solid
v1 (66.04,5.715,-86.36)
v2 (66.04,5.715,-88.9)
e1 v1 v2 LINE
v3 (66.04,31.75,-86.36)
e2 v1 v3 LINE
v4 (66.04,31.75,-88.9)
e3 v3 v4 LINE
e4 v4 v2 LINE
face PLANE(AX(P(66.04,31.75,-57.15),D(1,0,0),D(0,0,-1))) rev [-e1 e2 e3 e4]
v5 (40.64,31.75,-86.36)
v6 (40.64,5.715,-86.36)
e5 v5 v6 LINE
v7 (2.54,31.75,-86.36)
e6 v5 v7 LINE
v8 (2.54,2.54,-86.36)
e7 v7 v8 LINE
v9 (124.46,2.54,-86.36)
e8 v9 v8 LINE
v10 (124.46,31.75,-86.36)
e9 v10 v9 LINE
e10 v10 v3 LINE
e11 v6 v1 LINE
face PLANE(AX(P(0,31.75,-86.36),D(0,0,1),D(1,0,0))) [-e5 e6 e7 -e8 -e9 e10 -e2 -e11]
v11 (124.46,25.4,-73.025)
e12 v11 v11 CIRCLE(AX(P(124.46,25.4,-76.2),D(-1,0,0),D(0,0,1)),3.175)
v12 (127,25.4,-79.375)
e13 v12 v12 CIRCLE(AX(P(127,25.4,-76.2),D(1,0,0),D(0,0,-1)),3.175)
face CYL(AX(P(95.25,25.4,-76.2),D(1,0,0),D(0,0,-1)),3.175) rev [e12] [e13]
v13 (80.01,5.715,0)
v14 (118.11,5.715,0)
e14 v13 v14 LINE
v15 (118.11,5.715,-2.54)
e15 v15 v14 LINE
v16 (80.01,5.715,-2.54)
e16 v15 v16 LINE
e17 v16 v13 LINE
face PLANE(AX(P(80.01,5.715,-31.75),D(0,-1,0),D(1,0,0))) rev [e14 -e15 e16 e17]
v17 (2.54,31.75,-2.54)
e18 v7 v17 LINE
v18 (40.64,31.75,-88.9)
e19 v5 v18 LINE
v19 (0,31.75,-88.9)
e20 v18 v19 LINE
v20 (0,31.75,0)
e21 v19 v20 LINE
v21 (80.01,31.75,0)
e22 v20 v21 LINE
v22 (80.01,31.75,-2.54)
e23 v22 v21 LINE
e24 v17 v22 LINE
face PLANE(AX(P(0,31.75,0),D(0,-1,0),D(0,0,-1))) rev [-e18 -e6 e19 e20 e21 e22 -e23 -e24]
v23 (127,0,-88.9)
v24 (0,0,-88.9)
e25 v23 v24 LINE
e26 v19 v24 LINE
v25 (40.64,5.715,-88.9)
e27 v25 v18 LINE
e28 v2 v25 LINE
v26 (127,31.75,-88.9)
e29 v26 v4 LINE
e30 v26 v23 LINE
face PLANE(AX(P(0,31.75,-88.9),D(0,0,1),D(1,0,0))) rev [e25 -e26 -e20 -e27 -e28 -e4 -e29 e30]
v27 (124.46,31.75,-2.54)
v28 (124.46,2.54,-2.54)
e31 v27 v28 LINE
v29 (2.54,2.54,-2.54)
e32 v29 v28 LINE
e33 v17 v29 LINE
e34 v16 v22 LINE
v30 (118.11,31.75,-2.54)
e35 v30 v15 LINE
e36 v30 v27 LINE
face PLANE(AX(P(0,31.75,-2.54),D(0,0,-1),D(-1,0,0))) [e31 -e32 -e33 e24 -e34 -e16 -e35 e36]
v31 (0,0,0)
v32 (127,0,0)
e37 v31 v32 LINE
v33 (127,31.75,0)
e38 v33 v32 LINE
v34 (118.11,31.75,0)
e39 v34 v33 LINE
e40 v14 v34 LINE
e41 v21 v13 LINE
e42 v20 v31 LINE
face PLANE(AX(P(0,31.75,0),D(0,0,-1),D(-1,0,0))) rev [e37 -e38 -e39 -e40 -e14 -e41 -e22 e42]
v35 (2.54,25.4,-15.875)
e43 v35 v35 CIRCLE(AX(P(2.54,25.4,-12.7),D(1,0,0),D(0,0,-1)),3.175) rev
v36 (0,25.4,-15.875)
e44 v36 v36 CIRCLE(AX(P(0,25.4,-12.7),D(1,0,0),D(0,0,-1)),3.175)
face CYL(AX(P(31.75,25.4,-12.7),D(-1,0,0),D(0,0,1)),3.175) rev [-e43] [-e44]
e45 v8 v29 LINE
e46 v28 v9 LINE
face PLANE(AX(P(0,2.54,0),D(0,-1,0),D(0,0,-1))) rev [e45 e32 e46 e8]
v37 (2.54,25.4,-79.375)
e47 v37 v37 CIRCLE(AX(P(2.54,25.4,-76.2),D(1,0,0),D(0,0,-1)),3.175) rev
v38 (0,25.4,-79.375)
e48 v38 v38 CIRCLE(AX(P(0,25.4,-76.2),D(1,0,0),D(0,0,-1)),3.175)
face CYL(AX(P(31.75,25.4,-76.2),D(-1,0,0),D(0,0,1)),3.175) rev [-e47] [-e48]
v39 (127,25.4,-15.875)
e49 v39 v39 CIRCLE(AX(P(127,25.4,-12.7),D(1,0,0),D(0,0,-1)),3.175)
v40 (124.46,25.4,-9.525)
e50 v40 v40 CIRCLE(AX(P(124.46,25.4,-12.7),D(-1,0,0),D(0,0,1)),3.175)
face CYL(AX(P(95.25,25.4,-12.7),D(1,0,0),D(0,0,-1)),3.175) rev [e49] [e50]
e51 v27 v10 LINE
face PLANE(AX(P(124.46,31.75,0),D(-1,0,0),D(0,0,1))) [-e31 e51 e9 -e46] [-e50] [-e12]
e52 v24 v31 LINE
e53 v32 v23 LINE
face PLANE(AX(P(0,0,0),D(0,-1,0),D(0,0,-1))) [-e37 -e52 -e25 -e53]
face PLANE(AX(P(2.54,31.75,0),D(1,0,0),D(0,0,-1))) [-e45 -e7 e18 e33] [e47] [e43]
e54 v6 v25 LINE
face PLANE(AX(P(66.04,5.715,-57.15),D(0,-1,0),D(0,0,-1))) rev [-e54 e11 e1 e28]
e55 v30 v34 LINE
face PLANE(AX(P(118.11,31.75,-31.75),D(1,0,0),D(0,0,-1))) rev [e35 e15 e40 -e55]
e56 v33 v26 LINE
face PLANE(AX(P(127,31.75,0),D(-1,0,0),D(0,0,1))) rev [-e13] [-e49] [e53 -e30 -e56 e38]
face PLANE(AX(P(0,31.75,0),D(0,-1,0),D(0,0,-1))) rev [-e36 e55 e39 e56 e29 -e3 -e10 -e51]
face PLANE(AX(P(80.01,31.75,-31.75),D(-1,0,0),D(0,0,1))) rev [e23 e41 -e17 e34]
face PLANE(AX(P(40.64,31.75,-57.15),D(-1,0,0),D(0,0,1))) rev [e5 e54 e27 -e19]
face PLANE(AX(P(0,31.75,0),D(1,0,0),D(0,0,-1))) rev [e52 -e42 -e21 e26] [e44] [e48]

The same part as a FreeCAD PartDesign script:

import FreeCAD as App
import Part
import Sketcher
from FreeCAD import Vector
Q = App.Units.Quantity


def faces_at(feature, points):
    """Names of the faces that lie closest to the given points."""
    faces = feature.Shape.Faces
    near = lambda p: min(range(len(faces)), key=lambda i: faces[i].distToShape(Part.Vertex(*p))[0])
    return sorted({f"Face{near(p) + 1}" for p in points})

doc = App.newDocument("Part")
params = doc.addObject("Spreadsheet::Sheet", "Params")
for row, (alias, value) in enumerate([
    ("sketch1_width", "5 in"),
    ("sketch1_height", "3.5 in"),
    ("pad1_length", "1.25 in"),
    ("thickness_wall", "0.1 in"),
    ("sketch2_diameter", "0.25 in"),
    ("pocket1_length", "1.25 in"),
    ("sketch3_width", "1.5 in"),
    ("sketch3_height", "1.025 in"),
    ("pocket2_length", "1.25 in"),
    ("sketch4_width", "1 in"),
    ("sketch4_height", "1.025 in"),
    ("pocket3_length", "1.25 in"),
], start=1):
    params.set(f"A{row}", alias)
    params.set(f"B{row}", "=" + value)
    params.setAlias(f"B{row}", alias)

body = doc.addObject("PartDesign::Body", "Body")

sketch1 = body.newObject("Sketcher::SketchObject", "Sketch")
sketch1.AttachmentSupport = (doc.getObject("XZ_Plane"), [""])
sketch1.MapMode = "FlatFace"
sketch1.addGeometry([
    Part.LineSegment(Vector(0, -88.9, 0), Vector(0, 0, 0)),
    Part.LineSegment(Vector(0, 0, 0), Vector(127, 0, 0)),
    Part.LineSegment(Vector(127, 0, 0), Vector(127, -88.9, 0)),
    Part.LineSegment(Vector(127, -88.9, 0), Vector(0, -88.9, 0)),
], False)
sketch1.addConstraint([
    Sketcher.Constraint("Coincident", 0, 2, 1, 1),
    Sketcher.Constraint("Coincident", 1, 2, 2, 1),
    Sketcher.Constraint("Coincident", 2, 2, 3, 1),
    Sketcher.Constraint("Coincident", 3, 2, 0, 1),
    Sketcher.Constraint("Vertical", 0),
    Sketcher.Constraint("Horizontal", 1),
    Sketcher.Constraint("Vertical", 2),
    Sketcher.Constraint("Horizontal", 3),
    Sketcher.Constraint("Coincident", 0, 2, -1, 1),
    Sketcher.Constraint("DistanceX", 1, 1, 1, 2, Q("5 in")),
    Sketcher.Constraint("DistanceY", 0, 1, 0, 2, Q("3.5 in")),
])
sketch1.setExpression("Constraints[9]", "Params.sketch1_width")
sketch1.setExpression("Constraints[10]", "Params.sketch1_height")
pad1 = body.newObject("PartDesign::Pad", "Pad")
pad1.Profile = sketch1
pad1.setExpression("Length", "Params.pad1_length")
pad1.Reversed = True
doc.recompute()

thickness = body.newObject("PartDesign::Thickness", "Thickness")
thickness.Base = (pad1, faces_at(pad1, [(63.5, 31.75, -44.45)]))
thickness.setExpression("Value", "Params.thickness_wall")
thickness.Reversed = True
thickness.Join = "Intersection"

sketch2 = body.newObject("Sketcher::SketchObject", "Sketch001")
sketch2.AttachmentSupport = (doc.getObject("YZ_Plane"), [""])
sketch2.MapMode = "FlatFace"
sketch2.AttachmentOffset = App.Placement(Vector(0, 0, 5 * 25.4), App.Rotation())
sketch2.addGeometry([
    Part.Circle(Vector(25.4, -12.7, 0), Vector(0, 0, 1), 3.175),
    Part.Circle(Vector(25.4, -76.2, 0), Vector(0, 0, 1), 3.175),
], False)
sketch2.addConstraint([
    Sketcher.Constraint("Equal", 0, 1),
    Sketcher.Constraint("Vertical", 0, 3, 1, 3),
    Sketcher.Constraint("Diameter", 0, Q("0.25 in")),
    Sketcher.Constraint("DistanceX", -1, 1, 0, 3, Q("1 in")),
    Sketcher.Constraint("DistanceY", 1, 3, -1, 1, Q("3 in")),
    Sketcher.Constraint("DistanceY", 0, 3, -1, 1, Q("0.5 in")),
])
sketch2.setExpression("Constraints[2]", "Params.sketch2_diameter")
pocket1 = body.newObject("PartDesign::Pocket", "Pocket")
pocket1.Profile = sketch2
pocket1.setExpression("Length", "Params.pocket1_length")
doc.recompute()

datumplane = body.newObject("PartDesign::Plane", "DatumPlane")
datumplane.AttachmentSupport = (doc.getObject("YZ_Plane"), [""])
datumplane.MapMode = "FlatFace"
datumplane.AttachmentOffset = App.Placement(Vector(0, 0, 2.5 * 25.4), App.Rotation())
mirrored = body.newObject("PartDesign::Mirrored", "Mirrored")
mirrored.Originals = [pocket1]
mirrored.MirrorPlane = (datumplane, [""])
body.Tip = mirrored

sketch3 = body.newObject("Sketcher::SketchObject", "Sketch002")
sketch3.AttachmentSupport = (doc.getObject("XY_Plane"), [""])
sketch3.MapMode = "FlatFace"
sketch3.addGeometry([
    Part.LineSegment(Vector(80.01, 31.75, 0), Vector(80.01, 5.715, 0)),
    Part.LineSegment(Vector(80.01, 5.715, 0), Vector(118.11, 5.715, 0)),
    Part.LineSegment(Vector(118.11, 5.715, 0), Vector(118.11, 31.75, 0)),
    Part.LineSegment(Vector(118.11, 31.75, 0), Vector(80.01, 31.75, 0)),
], False)
sketch3.addConstraint([
    Sketcher.Constraint("Coincident", 0, 2, 1, 1),
    Sketcher.Constraint("Coincident", 1, 2, 2, 1),
    Sketcher.Constraint("Coincident", 2, 2, 3, 1),
    Sketcher.Constraint("Coincident", 3, 2, 0, 1),
    Sketcher.Constraint("Vertical", 0),
    Sketcher.Constraint("Horizontal", 1),
    Sketcher.Constraint("Vertical", 2),
    Sketcher.Constraint("Horizontal", 3),
    Sketcher.Constraint("DistanceX", 1, 1, 1, 2, Q("1.5 in")),
    Sketcher.Constraint("DistanceY", 0, 2, 0, 1, Q("1.025 in")),
    Sketcher.Constraint("DistanceX", -1, 1, 0, 2, Q("3.15 in")),
    Sketcher.Constraint("DistanceY", -1, 1, 2, 2, Q("1.25 in")),
])
sketch3.setExpression("Constraints[8]", "Params.sketch3_width")
sketch3.setExpression("Constraints[9]", "Params.sketch3_height")
pocket2 = body.newObject("PartDesign::Pocket", "Pocket001")
pocket2.Profile = sketch3
pocket2.setExpression("Length", "Params.pocket2_length")

sketch4 = body.newObject("Sketcher::SketchObject", "Sketch003")
sketch4.AttachmentSupport = (doc.getObject("XY_Plane"), [""])
sketch4.MapMode = "FlatFace"
sketch4.AttachmentOffset = App.Placement(Vector(0, 0, -3.5 * 25.4), App.Rotation())
sketch4.addGeometry([
    Part.LineSegment(Vector(66.04, 31.75, 0), Vector(66.04, 5.715, 0)),
    Part.LineSegment(Vector(66.04, 5.715, 0), Vector(40.64, 5.715, 0)),
    Part.LineSegment(Vector(40.64, 5.715, 0), Vector(40.64, 31.75, 0)),
    Part.LineSegment(Vector(40.64, 31.75, 0), Vector(66.04, 31.75, 0)),
], False)
sketch4.addConstraint([
    Sketcher.Constraint("Coincident", 0, 2, 1, 1),
    Sketcher.Constraint("Coincident", 1, 2, 2, 1),
    Sketcher.Constraint("Coincident", 2, 2, 3, 1),
    Sketcher.Constraint("Coincident", 3, 2, 0, 1),
    Sketcher.Constraint("Vertical", 0),
    Sketcher.Constraint("Horizontal", 1),
    Sketcher.Constraint("Vertical", 2),
    Sketcher.Constraint("Horizontal", 3),
    Sketcher.Constraint("DistanceX", 1, 2, 1, 1, Q("1 in")),
    Sketcher.Constraint("DistanceX", -1, 1, 0, 2, Q("2.6 in")),
    Sketcher.Constraint("DistanceY", 0, 2, 0, 1, Q("1.025 in")),
    Sketcher.Constraint("DistanceY", -1, 1, 2, 2, Q("1.25 in")),
])
sketch4.setExpression("Constraints[8]", "Params.sketch4_width")
sketch4.setExpression("Constraints[10]", "Params.sketch4_height")
pocket3 = body.newObject("PartDesign::Pocket", "Pocket002")
pocket3.Profile = sketch4
pocket3.setExpression("Length", "Params.pocket3_length")
pocket3.Reversed = True

doc.recompute()
